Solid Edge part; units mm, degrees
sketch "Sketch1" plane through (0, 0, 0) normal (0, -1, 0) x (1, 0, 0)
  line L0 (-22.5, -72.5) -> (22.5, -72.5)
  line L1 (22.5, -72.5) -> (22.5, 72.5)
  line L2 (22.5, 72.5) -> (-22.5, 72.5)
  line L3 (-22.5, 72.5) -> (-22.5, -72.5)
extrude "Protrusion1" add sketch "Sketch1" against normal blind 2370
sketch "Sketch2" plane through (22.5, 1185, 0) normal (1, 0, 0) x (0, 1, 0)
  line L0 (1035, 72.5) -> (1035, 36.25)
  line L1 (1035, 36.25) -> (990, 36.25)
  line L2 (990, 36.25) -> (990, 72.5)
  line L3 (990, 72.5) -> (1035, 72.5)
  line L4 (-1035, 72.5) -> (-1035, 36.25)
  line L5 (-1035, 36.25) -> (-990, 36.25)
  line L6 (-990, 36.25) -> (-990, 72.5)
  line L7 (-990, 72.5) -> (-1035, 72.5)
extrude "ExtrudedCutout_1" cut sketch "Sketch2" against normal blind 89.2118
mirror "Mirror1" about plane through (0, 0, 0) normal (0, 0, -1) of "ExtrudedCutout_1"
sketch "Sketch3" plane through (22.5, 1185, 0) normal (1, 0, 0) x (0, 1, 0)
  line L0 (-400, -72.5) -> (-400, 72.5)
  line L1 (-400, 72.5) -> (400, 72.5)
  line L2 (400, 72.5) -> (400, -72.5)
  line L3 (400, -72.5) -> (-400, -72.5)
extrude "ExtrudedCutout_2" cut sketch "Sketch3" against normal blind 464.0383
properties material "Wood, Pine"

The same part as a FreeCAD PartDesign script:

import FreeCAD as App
import Part
import Sketcher
Q = App.Units.Quantity

doc = App.newDocument("Part")
params = doc.addObject("Spreadsheet::Sheet", "Params")
for row, (alias, value) in enumerate([
    ("sketch1_width", "45 mm"),
    ("sketch1_height", "145 mm"),
    ("pad1_length", "2370 mm"),
    ("sketch2_width", "45 mm"),
    ("sketch2_height", "36.25 mm"),
    ("pocket1_length", "89.2118 mm"),
    ("sketch3_width", "800 mm"),
    ("sketch3_height", "145 mm"),
    ("pocket2_length", "464.0383 mm"),
], start=1):
    params.set(f"A{row}", alias)
    params.set(f"B{row}", "=" + value)
    params.setAlias(f"B{row}", alias)

body = doc.addObject("PartDesign::Body", "Body")
body.AllowCompound = True

# Sketch on XZ plane
sketch1 = doc.addObject("Sketcher::SketchObject", "Sketch")
body.addObject(sketch1)
sketch1.AttachmentSupport = (doc.XZ_Plane, [""])
sketch1.MapMode = "FlatFace"
sketch1.addGeometry(Part.LineSegment(App.Vector(-22, 72, 0), App.Vector(-22, -72, 0)), False)
sketch1.addGeometry(Part.LineSegment(App.Vector(-22, -72, 0), App.Vector(22, -72, 0)), False)
sketch1.addGeometry(Part.LineSegment(App.Vector(22, -72, 0), App.Vector(22, 72, 0)), False)
sketch1.addGeometry(Part.LineSegment(App.Vector(22, 72, 0), App.Vector(-22, 72, 0)), False)
sketch1.addConstraint(Sketcher.Constraint("Coincident", 0, 2, 1, 1))
sketch1.addConstraint(Sketcher.Constraint("Coincident", 1, 2, 2, 1))
sketch1.addConstraint(Sketcher.Constraint("Coincident", 2, 2, 3, 1))
sketch1.addConstraint(Sketcher.Constraint("Coincident", 3, 2, 0, 1))
sketch1.addConstraint(Sketcher.Constraint("Vertical", 0))
sketch1.addConstraint(Sketcher.Constraint("Horizontal", 1))
sketch1.addConstraint(Sketcher.Constraint("Vertical", 2))
sketch1.addConstraint(Sketcher.Constraint("Horizontal", 3))
sketch1.addConstraint(Sketcher.Constraint("Symmetric", 0, 2, 2, 2, -1, 1))
sketch1.addConstraint(Sketcher.Constraint("DistanceX", 1, 1, 1, 2, Q("45 mm")))
sketch1.addConstraint(Sketcher.Constraint("DistanceY", 0, 2, 0, 1, Q("145 mm")))
sketch1.setExpression("Constraints[9]", "Params.sketch1_width")
sketch1.setExpression("Constraints[10]", "Params.sketch1_height")
pad1 = doc.addObject("PartDesign::Pad", "Pad")
body.addObject(pad1)
pad1.Profile = sketch1
pad1.setExpression("Length", "Params.pad1_length")
pad1.Reversed = True

# Sketch on YZ plane
sketch2 = doc.addObject("Sketcher::SketchObject", "Sketch001")
body.addObject(sketch2)
sketch2.AttachmentSupport = (doc.YZ_Plane, [""])
sketch2.MapMode = "FlatFace"
sketch2.AttachmentOffset = App.Placement(App.Vector(0, 0, 22.5), App.Rotation())
sketch2.addGeometry(Part.LineSegment(App.Vector(2220, 36, 0), App.Vector(2220, 72, 0)), False)
sketch2.addGeometry(Part.LineSegment(App.Vector(2220, 72, 0), App.Vector(2175, 72, 0)), False)
sketch2.addGeometry(Part.LineSegment(App.Vector(2175, 72, 0), App.Vector(2175, 36, 0)), False)
sketch2.addGeometry(Part.LineSegment(App.Vector(2175, 36, 0), App.Vector(2220, 36, 0)), False)
sketch2.addGeometry(Part.LineSegment(App.Vector(195, 72, 0), App.Vector(150, 72, 0)), False)
sketch2.addGeometry(Part.LineSegment(App.Vector(150, 72, 0), App.Vector(150, 36, 0)), False)
sketch2.addGeometry(Part.LineSegment(App.Vector(150, 36, 0), App.Vector(195, 36, 0)), False)
sketch2.addGeometry(Part.LineSegment(App.Vector(195, 36, 0), App.Vector(195, 72, 0)), False)
sketch2.addConstraint(Sketcher.Constraint("Coincident", 0, 2, 1, 1))
sketch2.addConstraint(Sketcher.Constraint("Coincident", 1, 2, 2, 1))
sketch2.addConstraint(Sketcher.Constraint("Coincident", 2, 2, 3, 1))
sketch2.addConstraint(Sketcher.Constraint("Coincident", 3, 2, 0, 1))
sketch2.addConstraint(Sketcher.Constraint("Coincident", 4, 2, 5, 1))
sketch2.addConstraint(Sketcher.Constraint("Coincident", 5, 2, 6, 1))
sketch2.addConstraint(Sketcher.Constraint("Coincident", 6, 2, 7, 1))
sketch2.addConstraint(Sketcher.Constraint("Coincident", 7, 2, 4, 1))
sketch2.addConstraint(Sketcher.Constraint("Vertical", 0))
sketch2.addConstraint(Sketcher.Constraint("Horizontal", 1))
sketch2.addConstraint(Sketcher.Constraint("Vertical", 2))
sketch2.addConstraint(Sketcher.Constraint("Horizontal", 3))
sketch2.addConstraint(Sketcher.Constraint("Horizontal", 4))
sketch2.addConstraint(Sketcher.Constraint("Vertical", 5))
sketch2.addConstraint(Sketcher.Constraint("Horizontal", 6))
sketch2.addConstraint(Sketcher.Constraint("Vertical", 7))
sketch2.addConstraint(Sketcher.Constraint("Horizontal", 1, 2, 4, 2))
sketch2.addConstraint(Sketcher.Constraint("Horizontal", 3, 2, 5, 2))
sketch2.addConstraint(Sketcher.Constraint("Equal", 3, 4))
sketch2.addConstraint(Sketcher.Constraint("DistanceX", 1, 2, 1, 1, Q("45 mm")))
sketch2.addConstraint(Sketcher.Constraint("DistanceX", -1, 1, 0, 2, Q("2220 mm")))
sketch2.addConstraint(Sketcher.Constraint("DistanceX", -1, 1, 4, 2, Q("150 mm")))
sketch2.addConstraint(Sketcher.Constraint("DistanceY", 0, 1, 0, 2, Q("36.25 mm")))
sketch2.addConstraint(Sketcher.Constraint("DistanceY", -1, 1, 0, 2, Q("72.5 mm")))
sketch2.setExpression("Constraints[19]", "Params.sketch2_width")
sketch2.setExpression("Constraints[22]", "Params.sketch2_height")
pocket1 = doc.addObject("PartDesign::Pocket", "Pocket")
body.addObject(pocket1)
pocket1.Profile = sketch2
pocket1.setExpression("Length", "Params.pocket1_length")
doc.recompute()

mirrored = doc.addObject("PartDesign::Mirrored", "Mirrored")
body.addObject(mirrored)
mirrored.Originals = [pocket1]
mirrored.MirrorPlane = (doc.XY_Plane, [""])
body.Tip = mirrored

# Sketch on YZ plane
sketch3 = doc.addObject("Sketcher::SketchObject", "Sketch002")
body.addObject(sketch3)
sketch3.AttachmentSupport = (doc.YZ_Plane, [""])
sketch3.MapMode = "FlatFace"
sketch3.AttachmentOffset = App.Placement(App.Vector(0, 0, 22.5), App.Rotation())
sketch3.addGeometry(Part.LineSegment(App.Vector(785, 72, 0), App.Vector(785, -72, 0)), False)
sketch3.addGeometry(Part.LineSegment(App.Vector(785, -72, 0), App.Vector(1585, -72, 0)), False)
sketch3.addGeometry(Part.LineSegment(App.Vector(1585, -72, 0), App.Vector(1585, 72, 0)), False)
sketch3.addGeometry(Part.LineSegment(App.Vector(1585, 72, 0), App.Vector(785, 72, 0)), False)
sketch3.addConstraint(Sketcher.Constraint("Coincident", 0, 2, 1, 1))
sketch3.addConstraint(Sketcher.Constraint("Coincident", 1, 2, 2, 1))
sketch3.addConstraint(Sketcher.Constraint("Coincident", 2, 2, 3, 1))
sketch3.addConstraint(Sketcher.Constraint("Coincident", 3, 2, 0, 1))
sketch3.addConstraint(Sketcher.Constraint("Vertical", 0))
sketch3.addConstraint(Sketcher.Constraint("Horizontal", 1))
sketch3.addConstraint(Sketcher.Constraint("Vertical", 2))
sketch3.addConstraint(Sketcher.Constraint("Horizontal", 3))
sketch3.addConstraint(Sketcher.Constraint("DistanceX", 1, 1, 1, 2, Q("800 mm")))
sketch3.addConstraint(Sketcher.Constraint("DistanceY", 0, 2, 0, 1, Q("145 mm")))
sketch3.addConstraint(Sketcher.Constraint("DistanceX", -1, 1, 0, 2, Q("785 mm")))
sketch3.addConstraint(Sketcher.Constraint("DistanceY", 0, 2, -1, 1, Q("72.5 mm")))
sketch3.setExpression("Constraints[8]", "Params.sketch3_width")
sketch3.setExpression("Constraints[9]", "Params.sketch3_height")
pocket2 = doc.addObject("PartDesign::Pocket", "Pocket001")
body.addObject(pocket2)
pocket2.Profile = sketch3
pocket2.setExpression("Length", "Params.pocket2_length")

doc.recompute()
